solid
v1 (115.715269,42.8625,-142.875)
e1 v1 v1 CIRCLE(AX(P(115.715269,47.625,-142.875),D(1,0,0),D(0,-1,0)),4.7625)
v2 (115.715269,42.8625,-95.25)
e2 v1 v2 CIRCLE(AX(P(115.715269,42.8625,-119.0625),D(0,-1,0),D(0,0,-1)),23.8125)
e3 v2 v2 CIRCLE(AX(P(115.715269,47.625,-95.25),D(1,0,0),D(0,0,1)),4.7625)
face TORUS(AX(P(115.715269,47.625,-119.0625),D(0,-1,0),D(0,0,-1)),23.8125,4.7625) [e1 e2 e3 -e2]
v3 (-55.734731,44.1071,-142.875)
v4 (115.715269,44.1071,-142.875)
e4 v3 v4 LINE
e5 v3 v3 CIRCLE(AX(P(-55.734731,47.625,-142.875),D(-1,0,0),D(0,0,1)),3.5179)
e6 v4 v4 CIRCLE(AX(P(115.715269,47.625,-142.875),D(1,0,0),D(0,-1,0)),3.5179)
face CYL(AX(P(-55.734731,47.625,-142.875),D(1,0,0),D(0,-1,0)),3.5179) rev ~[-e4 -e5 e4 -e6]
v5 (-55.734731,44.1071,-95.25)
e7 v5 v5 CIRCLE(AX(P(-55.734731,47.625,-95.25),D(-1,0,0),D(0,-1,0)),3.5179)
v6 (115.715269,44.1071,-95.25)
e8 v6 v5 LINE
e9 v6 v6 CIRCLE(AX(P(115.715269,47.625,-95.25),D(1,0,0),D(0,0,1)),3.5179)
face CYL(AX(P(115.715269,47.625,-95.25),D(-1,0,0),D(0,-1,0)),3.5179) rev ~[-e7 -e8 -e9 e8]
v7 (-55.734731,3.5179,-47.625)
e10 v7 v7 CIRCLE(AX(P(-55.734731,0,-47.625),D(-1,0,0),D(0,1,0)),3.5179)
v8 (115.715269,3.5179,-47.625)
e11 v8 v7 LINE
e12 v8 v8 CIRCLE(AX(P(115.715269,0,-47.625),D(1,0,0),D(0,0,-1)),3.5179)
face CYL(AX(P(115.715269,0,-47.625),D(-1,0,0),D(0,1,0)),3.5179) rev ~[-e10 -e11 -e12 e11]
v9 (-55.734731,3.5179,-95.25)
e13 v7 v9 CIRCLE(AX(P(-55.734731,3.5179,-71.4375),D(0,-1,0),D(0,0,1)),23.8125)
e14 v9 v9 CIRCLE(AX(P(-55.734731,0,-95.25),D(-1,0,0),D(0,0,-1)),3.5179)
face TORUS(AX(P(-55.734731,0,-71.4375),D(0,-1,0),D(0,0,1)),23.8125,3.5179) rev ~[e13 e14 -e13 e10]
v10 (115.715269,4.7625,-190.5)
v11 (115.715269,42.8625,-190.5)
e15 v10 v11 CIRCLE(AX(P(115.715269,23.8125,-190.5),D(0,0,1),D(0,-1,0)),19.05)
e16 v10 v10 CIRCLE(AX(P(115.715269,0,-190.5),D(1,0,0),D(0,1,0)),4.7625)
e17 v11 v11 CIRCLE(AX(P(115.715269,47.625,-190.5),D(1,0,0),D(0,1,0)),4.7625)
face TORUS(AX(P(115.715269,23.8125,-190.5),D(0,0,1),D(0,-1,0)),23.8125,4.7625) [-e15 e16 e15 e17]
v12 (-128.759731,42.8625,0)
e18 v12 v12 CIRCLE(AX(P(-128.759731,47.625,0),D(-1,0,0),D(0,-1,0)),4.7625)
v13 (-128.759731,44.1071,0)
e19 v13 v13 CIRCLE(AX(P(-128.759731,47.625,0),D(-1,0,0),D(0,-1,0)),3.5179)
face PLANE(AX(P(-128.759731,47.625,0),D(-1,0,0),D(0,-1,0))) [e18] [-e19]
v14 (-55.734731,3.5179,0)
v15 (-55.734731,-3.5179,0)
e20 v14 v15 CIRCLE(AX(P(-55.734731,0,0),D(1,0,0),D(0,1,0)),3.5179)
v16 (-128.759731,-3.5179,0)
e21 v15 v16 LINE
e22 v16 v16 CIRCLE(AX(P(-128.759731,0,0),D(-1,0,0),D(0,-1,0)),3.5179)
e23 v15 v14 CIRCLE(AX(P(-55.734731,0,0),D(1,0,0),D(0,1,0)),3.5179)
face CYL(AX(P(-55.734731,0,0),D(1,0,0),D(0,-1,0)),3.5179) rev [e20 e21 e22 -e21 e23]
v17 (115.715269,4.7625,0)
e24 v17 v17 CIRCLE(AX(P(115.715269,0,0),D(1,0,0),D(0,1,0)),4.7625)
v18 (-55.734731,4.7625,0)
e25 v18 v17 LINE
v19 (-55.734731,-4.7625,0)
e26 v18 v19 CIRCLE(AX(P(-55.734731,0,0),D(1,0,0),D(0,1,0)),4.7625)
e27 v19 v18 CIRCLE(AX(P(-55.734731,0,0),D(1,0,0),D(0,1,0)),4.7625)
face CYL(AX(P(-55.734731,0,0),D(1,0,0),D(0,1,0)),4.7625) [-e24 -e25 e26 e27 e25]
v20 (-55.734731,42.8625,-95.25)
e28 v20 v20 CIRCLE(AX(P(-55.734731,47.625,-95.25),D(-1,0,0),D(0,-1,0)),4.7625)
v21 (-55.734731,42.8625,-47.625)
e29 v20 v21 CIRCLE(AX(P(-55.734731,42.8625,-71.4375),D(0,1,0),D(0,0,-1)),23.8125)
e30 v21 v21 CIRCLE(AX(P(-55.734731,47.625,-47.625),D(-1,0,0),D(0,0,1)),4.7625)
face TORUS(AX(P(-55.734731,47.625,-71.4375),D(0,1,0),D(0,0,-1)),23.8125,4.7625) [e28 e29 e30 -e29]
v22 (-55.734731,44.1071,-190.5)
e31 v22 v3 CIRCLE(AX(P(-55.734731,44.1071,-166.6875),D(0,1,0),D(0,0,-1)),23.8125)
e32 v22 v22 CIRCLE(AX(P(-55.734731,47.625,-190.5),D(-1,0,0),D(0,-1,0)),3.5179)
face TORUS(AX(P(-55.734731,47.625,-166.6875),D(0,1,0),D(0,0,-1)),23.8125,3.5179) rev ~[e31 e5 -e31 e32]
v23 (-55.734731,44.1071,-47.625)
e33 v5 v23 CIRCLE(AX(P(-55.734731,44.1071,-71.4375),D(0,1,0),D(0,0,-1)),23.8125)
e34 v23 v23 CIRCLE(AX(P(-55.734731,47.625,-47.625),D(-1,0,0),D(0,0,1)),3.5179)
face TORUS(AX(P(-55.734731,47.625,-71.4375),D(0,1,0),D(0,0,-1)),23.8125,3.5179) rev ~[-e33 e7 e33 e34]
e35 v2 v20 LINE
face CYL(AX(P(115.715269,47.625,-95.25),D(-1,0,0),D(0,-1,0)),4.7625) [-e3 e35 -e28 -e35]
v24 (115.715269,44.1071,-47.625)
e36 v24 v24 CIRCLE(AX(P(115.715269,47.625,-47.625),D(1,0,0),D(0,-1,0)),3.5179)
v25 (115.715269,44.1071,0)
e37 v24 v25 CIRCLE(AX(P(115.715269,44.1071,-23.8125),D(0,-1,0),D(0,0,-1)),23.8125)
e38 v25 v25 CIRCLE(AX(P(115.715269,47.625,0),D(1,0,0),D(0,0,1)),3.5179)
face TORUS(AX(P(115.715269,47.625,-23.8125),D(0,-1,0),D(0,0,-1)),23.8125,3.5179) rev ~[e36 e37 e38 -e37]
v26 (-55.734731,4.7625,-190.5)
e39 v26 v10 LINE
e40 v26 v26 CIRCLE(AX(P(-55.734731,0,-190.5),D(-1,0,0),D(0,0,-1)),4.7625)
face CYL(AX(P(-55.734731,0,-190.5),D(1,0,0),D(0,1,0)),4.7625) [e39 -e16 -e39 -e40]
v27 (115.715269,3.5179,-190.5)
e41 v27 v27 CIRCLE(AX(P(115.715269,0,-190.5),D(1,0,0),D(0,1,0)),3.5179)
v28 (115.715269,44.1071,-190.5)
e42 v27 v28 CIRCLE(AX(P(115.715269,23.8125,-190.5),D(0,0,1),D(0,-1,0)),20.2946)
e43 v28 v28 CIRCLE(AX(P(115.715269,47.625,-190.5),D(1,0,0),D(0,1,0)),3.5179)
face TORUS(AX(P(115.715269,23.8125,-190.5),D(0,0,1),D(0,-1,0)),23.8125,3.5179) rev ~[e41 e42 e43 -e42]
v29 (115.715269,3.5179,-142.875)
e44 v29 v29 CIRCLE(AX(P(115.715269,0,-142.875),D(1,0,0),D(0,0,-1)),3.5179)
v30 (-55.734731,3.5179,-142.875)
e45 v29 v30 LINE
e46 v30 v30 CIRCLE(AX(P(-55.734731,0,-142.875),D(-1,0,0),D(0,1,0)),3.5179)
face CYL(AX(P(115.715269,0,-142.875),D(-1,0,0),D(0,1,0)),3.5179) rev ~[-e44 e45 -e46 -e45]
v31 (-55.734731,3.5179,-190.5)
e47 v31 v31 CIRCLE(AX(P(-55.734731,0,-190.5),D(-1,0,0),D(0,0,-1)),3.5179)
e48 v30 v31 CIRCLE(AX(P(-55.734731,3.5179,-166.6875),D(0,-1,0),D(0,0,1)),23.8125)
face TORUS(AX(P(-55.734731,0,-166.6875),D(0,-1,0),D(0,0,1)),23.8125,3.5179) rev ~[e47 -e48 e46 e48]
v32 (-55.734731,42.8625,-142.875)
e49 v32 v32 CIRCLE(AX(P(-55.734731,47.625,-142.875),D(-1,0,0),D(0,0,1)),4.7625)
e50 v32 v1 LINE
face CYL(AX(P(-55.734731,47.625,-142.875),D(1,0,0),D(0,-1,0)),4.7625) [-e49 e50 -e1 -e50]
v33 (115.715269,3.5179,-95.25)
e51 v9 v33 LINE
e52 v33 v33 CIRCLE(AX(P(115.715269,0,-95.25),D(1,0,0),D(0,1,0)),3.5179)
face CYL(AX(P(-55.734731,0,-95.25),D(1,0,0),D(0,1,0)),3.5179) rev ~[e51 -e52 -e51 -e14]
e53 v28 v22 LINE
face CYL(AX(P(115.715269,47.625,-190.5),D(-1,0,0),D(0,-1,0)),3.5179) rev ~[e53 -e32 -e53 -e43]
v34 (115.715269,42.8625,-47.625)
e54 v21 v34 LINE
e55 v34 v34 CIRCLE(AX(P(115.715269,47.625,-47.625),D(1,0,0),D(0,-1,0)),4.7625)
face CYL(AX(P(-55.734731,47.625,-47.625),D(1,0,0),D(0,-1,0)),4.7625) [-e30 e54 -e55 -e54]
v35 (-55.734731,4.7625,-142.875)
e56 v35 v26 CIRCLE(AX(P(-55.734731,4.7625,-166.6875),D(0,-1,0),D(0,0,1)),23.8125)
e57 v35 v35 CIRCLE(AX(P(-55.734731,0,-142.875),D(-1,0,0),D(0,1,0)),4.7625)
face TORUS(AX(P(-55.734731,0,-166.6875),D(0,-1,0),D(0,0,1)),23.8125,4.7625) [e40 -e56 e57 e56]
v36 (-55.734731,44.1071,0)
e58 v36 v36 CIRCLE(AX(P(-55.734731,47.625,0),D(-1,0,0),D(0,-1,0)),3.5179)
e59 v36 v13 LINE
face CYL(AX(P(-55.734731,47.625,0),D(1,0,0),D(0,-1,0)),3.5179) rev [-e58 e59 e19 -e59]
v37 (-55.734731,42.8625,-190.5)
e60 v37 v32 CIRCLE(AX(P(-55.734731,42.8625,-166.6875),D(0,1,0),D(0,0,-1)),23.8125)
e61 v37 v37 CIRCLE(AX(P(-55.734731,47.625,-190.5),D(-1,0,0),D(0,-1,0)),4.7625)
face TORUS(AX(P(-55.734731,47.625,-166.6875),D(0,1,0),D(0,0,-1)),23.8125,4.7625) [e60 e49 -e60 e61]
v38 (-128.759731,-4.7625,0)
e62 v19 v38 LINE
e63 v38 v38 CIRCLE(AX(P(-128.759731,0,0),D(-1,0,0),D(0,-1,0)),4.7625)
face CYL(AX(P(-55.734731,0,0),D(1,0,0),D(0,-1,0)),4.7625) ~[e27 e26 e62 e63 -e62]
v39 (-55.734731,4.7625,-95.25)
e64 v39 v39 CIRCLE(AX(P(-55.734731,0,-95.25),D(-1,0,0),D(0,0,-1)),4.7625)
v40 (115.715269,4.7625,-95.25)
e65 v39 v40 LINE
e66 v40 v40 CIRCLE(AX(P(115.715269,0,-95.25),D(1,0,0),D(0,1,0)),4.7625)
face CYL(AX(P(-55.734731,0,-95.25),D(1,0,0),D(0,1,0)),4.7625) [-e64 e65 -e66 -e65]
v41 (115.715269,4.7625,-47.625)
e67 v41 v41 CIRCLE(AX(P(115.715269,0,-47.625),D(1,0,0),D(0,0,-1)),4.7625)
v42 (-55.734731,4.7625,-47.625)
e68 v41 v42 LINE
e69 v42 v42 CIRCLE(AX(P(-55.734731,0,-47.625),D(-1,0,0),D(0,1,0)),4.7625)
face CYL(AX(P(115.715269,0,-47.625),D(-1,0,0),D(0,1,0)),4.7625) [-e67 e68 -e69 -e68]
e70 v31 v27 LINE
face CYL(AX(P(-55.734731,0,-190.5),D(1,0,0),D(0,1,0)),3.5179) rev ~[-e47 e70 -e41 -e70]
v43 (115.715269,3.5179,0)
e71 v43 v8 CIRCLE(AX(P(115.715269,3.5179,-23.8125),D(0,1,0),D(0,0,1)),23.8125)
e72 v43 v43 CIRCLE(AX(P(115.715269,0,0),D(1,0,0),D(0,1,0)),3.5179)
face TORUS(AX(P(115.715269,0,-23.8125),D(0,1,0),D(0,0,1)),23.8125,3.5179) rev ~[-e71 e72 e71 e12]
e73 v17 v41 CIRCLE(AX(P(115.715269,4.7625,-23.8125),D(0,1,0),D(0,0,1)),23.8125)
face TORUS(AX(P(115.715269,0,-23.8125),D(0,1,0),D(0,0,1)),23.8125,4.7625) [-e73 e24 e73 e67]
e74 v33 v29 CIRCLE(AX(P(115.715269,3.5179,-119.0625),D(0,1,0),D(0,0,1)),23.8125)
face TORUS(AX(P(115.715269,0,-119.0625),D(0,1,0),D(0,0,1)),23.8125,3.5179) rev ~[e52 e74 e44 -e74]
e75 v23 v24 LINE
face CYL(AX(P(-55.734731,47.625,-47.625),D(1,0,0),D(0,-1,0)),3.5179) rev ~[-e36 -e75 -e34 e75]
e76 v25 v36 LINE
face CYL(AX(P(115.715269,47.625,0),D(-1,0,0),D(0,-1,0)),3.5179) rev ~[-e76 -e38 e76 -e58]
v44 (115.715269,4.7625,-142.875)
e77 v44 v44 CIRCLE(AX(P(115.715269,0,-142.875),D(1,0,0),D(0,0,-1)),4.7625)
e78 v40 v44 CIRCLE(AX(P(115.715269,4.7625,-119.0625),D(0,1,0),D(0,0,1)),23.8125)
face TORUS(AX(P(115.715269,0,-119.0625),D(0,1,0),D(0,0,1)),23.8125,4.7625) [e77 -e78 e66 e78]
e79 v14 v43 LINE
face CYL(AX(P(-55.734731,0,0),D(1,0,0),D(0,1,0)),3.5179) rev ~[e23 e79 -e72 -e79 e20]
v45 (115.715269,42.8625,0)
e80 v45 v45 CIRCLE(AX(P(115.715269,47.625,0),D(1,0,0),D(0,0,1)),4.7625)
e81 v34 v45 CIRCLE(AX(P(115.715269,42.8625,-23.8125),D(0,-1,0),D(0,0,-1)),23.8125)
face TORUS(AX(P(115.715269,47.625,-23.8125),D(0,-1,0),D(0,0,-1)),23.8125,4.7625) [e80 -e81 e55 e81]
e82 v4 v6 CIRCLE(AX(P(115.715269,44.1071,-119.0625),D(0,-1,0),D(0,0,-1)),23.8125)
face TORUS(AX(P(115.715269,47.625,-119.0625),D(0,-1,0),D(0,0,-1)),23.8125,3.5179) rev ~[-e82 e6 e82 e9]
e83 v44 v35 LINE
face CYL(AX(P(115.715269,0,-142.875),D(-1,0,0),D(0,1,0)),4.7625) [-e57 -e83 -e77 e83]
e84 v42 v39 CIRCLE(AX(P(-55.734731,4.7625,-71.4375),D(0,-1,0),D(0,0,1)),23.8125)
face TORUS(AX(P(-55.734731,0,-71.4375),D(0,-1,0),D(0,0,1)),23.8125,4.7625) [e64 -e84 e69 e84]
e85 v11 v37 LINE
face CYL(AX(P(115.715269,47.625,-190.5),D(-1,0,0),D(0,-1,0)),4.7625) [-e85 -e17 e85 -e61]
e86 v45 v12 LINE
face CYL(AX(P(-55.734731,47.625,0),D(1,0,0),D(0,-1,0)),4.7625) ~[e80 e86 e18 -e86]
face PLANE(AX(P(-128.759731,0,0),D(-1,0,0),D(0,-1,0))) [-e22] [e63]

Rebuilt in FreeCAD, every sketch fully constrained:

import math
import FreeCAD as App
import Part
import Sketcher
Q = App.Units.Quantity

doc = App.newDocument("Part")
body = doc.addObject("PartDesign::Body", "Body")

# Sketch on YZ plane
sketch1 = body.newObject("Sketcher::SketchObject", "Sketch")
sketch1.AttachmentSupport = (doc.getObject("YZ_Plane"), [""])
sketch1.MapMode = "FlatFace"
sketch1.AttachmentOffset = App.Placement(App.Vector(0, 0, -55.734731), App.Rotation())
sketch1.addGeometry([
    Part.Circle(App.Vector(0, 0, 0), App.Vector(0, 0, 1), 4.8),
    Part.Circle(App.Vector(0, 0, 0), App.Vector(0, 0, 1), 3.5),
], False)
sketch1.addConstraint([
    Sketcher.Constraint("Coincident", 0, 3, -1, 1),
    Sketcher.Constraint("Coincident", 1, 3, -1, 1),
    Sketcher.Constraint("Diameter", 0, Q("0.375 in")),
    Sketcher.Constraint("Diameter", 1, Q("0.277 in")),
])

# Sketch on XZ plane
sketch2 = body.newObject("Sketcher::SketchObject", "Sketch001")
sketch2.AttachmentSupport = (doc.getObject("XZ_Plane"), [""])
sketch2.MapMode = "FlatFace"
sketch2.addGeometry([
    Part.LineSegment(App.Vector(-56, 0, 0), App.Vector(116, 0, 0)),  # 0
    Part.ArcOfCircle(Part.Circle(App.Vector(116, -24, 0), App.Vector(0, 0, 1), 24), math.radians(-90), math.radians(90)),  # 1
    Part.LineSegment(App.Vector(116, -48, 0), App.Vector(-56, -48, 0)),  # 2
    Part.ArcOfCircle(Part.Circle(App.Vector(-56, -71, 0), App.Vector(0, 0, 1), 24), math.radians(90), math.radians(270)),  # 3
    Part.LineSegment(App.Vector(-56, -95, 0), App.Vector(116, -95, 0)),  # 4
    Part.ArcOfCircle(Part.Circle(App.Vector(116, -119, 0), App.Vector(0, 0, 1), 24), math.radians(-90), math.radians(90)),  # 5
    Part.LineSegment(App.Vector(116, -143, 0), App.Vector(-56, -143, 0)),  # 6
    Part.ArcOfCircle(Part.Circle(App.Vector(-56, -167, 0), App.Vector(0, 0, 1), 24), math.radians(90), math.radians(270)),  # 7
    Part.LineSegment(App.Vector(-56, -190, 0), App.Vector(116, -190, 0)),  # 8
], False)
sketch2.addConstraint([
    Sketcher.Constraint("Tangent", 0, 2, 1, 2),
    Sketcher.Constraint("Tangent", 1, 1, 2, 1),
    Sketcher.Constraint("Tangent", 2, 2, 3, 1),
    Sketcher.Constraint("Tangent", 3, 2, 4, 1),
    Sketcher.Constraint("Tangent", 4, 2, 5, 2),
    Sketcher.Constraint("Tangent", 5, 1, 6, 1),
    Sketcher.Constraint("Tangent", 6, 2, 7, 1),
    Sketcher.Constraint("Tangent", 7, 2, 8, 1),
    Sketcher.Constraint("Horizontal", 0),
    Sketcher.Constraint("Horizontal", 2),
    Sketcher.Constraint("Horizontal", 4),
    Sketcher.Constraint("Horizontal", 6),
    Sketcher.Constraint("Horizontal", 8),
    Sketcher.Constraint("Equal", 1, 3),
    Sketcher.Constraint("Equal", 3, 5),
    Sketcher.Constraint("Equal", 5, 7),
    Sketcher.Constraint("PointOnObject", 0, 1, -1),
    Sketcher.Constraint("Vertical", 1, 3, 5, 3),
    Sketcher.Constraint("Vertical", 3, 3, 7, 3),
    Sketcher.Constraint("Vertical", 7, 3, 0, 1),
    Sketcher.Constraint("Vertical", 5, 1, 8, 2),
    Sketcher.Constraint("Radius", 1, Q("0.9375 in")),
    Sketcher.Constraint("DistanceX", 0, 1, 0, 2, Q("6.75 in")),
    Sketcher.Constraint("DistanceX", -1, 1, 1, 3, Q("115.715269 mm")),
])
doc.recompute()

additivepipe = body.newObject("PartDesign::AdditivePipe", "AdditivePipe")
additivepipe.Profile = sketch1
additivepipe.Spine = (sketch2, ["Edge1", "Edge2", "Edge3", "Edge4", "Edge5", "Edge6", "Edge7", "Edge8", "Edge9"])

# Sketch on YZ plane
sketch3 = body.newObject("Sketcher::SketchObject", "Sketch002")
sketch3.AttachmentSupport = (doc.getObject("YZ_Plane"), [""])
sketch3.MapMode = "FlatFace"
sketch3.AttachmentOffset = App.Placement(App.Vector(0, 0, 115.715269), App.Rotation())
sketch3.addGeometry([
    Part.Circle(App.Vector(0, -190.5, 0), App.Vector(0, 0, 1), 4.8),
    Part.Circle(App.Vector(0, -190.5, 0), App.Vector(0, 0, 1), 3.5),
], False)
sketch3.addConstraint([
    Sketcher.Constraint("Coincident", 1, 3, 0, 3),
    Sketcher.Constraint("PointOnObject", 0, 3, -2),
    Sketcher.Constraint("Diameter", 0, Q("0.375 in")),
    Sketcher.Constraint("Diameter", 1, Q("0.277 in")),
    Sketcher.Constraint("DistanceY", 0, 3, -1, 1, Q("7.5 in")),
])

# Sketch on XY plane
sketch4 = body.newObject("Sketcher::SketchObject", "Sketch003")
sketch4.AttachmentSupport = (doc.getObject("XY_Plane"), [""])
sketch4.MapMode = "FlatFace"
sketch4.AttachmentOffset = App.Placement(App.Vector(0, 0, -7.5 * 25.4), App.Rotation())
sketch4.addGeometry(Part.ArcOfCircle(Part.Circle(App.Vector(116, 24, 0), App.Vector(0, 0, 1), 24), math.radians(-90), math.radians(90)), False)
sketch4.addConstraint([
    Sketcher.Constraint("PointOnObject", 0, 1, -1),
    Sketcher.Constraint("Radius", 0, Q("0.9375 in")),
    Sketcher.Constraint("DistanceX", -1, 1, 0, 3, Q("115.715269 mm")),
    Sketcher.Constraint("DistanceX", -1, 1, 0, 1, Q("115.715269 mm")),
    Sketcher.Constraint("DistanceX", -1, 1, 0, 2, Q("115.715269 mm")),
])
doc.recompute()

additivepipe2 = body.newObject("PartDesign::AdditivePipe", "AdditivePipe001")
additivepipe2.Profile = sketch3
additivepipe2.Spine = (sketch4, ["Edge1"])

# Sketch on YZ plane
sketch5 = body.newObject("Sketcher::SketchObject", "Sketch004")
sketch5.AttachmentSupport = (doc.getObject("YZ_Plane"), [""])
sketch5.MapMode = "FlatFace"
sketch5.AttachmentOffset = App.Placement(App.Vector(0, 0, 115.715269), App.Rotation())
sketch5.addGeometry([
    Part.Circle(App.Vector(47.6, -190.5, 0), App.Vector(0, 0, 1), 4.8),
    Part.Circle(App.Vector(47.6, -190.5, 0), App.Vector(0, 0, 1), 3.5),
], False)
sketch5.addConstraint([
    Sketcher.Constraint("Coincident", 1, 3, 0, 3),
    Sketcher.Constraint("Diameter", 0, Q("0.375 in")),
    Sketcher.Constraint("Diameter", 1, Q("0.277 in")),
    Sketcher.Constraint("DistanceY", 0, 3, -1, 1, Q("7.5 in")),
    Sketcher.Constraint("DistanceX", -1, 1, 0, 3, Q("1.875 in")),
])

# Sketch on XZ plane
sketch6 = body.newObject("Sketcher::SketchObject", "Sketch005")
sketch6.AttachmentSupport = (doc.getObject("XZ_Plane"), [""])
sketch6.MapMode = "FlatFace"
sketch6.AttachmentOffset = App.Placement(App.Vector(0, 0, -1.875 * 25.4), App.Rotation())
sketch6.addGeometry([
    Part.LineSegment(App.Vector(116, -190, 0), App.Vector(-56, -190, 0)),  # 0
    Part.ArcOfCircle(Part.Circle(App.Vector(-56, -167, 0), App.Vector(0, 0, 1), 24), math.radians(90), math.radians(270)),  # 1
    Part.LineSegment(App.Vector(-56, -143, 0), App.Vector(116, -143, 0)),  # 2
    Part.ArcOfCircle(Part.Circle(App.Vector(116, -119, 0), App.Vector(0, 0, 1), 24), math.radians(-90), math.radians(90)),  # 3
    Part.LineSegment(App.Vector(116, -95, 0), App.Vector(-56, -95, 0)),  # 4
    Part.ArcOfCircle(Part.Circle(App.Vector(-56, -71, 0), App.Vector(0, 0, 1), 24), math.radians(90), math.radians(270)),  # 5
    Part.LineSegment(App.Vector(-56, -48, 0), App.Vector(116, -48, 0)),  # 6
    Part.ArcOfCircle(Part.Circle(App.Vector(116, -24, 0), App.Vector(0, 0, 1), 24), math.radians(-90), math.radians(90)),  # 7
    Part.LineSegment(App.Vector(116, 0, 0), App.Vector(-56, 0, 0)),  # 8
], False)
sketch6.addConstraint([
    Sketcher.Constraint("Tangent", 0, 2, 1, 2),
    Sketcher.Constraint("Tangent", 1, 1, 2, 1),
    Sketcher.Constraint("Tangent", 2, 2, 3, 1),
    Sketcher.Constraint("Tangent", 3, 2, 4, 1),
    Sketcher.Constraint("Tangent", 4, 2, 5, 2),
    Sketcher.Constraint("Tangent", 5, 1, 6, 1),
    Sketcher.Constraint("Tangent", 6, 2, 7, 1),
    Sketcher.Constraint("Tangent", 7, 2, 8, 1),
    Sketcher.Constraint("Horizontal", 0),
    Sketcher.Constraint("Horizontal", 2),
    Sketcher.Constraint("Horizontal", 4),
    Sketcher.Constraint("Horizontal", 6),
    Sketcher.Constraint("Horizontal", 8),
    Sketcher.Constraint("Equal", 1, 3),
    Sketcher.Constraint("Equal", 3, 5),
    Sketcher.Constraint("Equal", 5, 7),
    Sketcher.Constraint("PointOnObject", 7, 2, -1),
    Sketcher.Constraint("Vertical", 1, 3, 5, 3),
    Sketcher.Constraint("Vertical", 3, 3, 7, 3),
    Sketcher.Constraint("Vertical", 7, 3, 0, 1),
    Sketcher.Constraint("Vertical", 5, 1, 8, 2),
    Sketcher.Constraint("Radius", 1, Q("0.9375 in")),
    Sketcher.Constraint("DistanceX", 0, 2, 0, 1, Q("6.75 in")),
    Sketcher.Constraint("DistanceX", 1, 3, -1, 1, Q("55.734731 mm")),
])
doc.recompute()

additivepipe3 = body.newObject("PartDesign::AdditivePipe", "AdditivePipe002")
additivepipe3.Profile = sketch5
additivepipe3.Spine = (sketch6, ["Edge1", "Edge2", "Edge3", "Edge4", "Edge5", "Edge6", "Edge7", "Edge8", "Edge9"])

# Sketch on YZ plane
sketch7 = body.newObject("Sketcher::SketchObject", "Sketch006")
sketch7.AttachmentSupport = (doc.getObject("YZ_Plane"), [""])
sketch7.MapMode = "FlatFace"
sketch7.AttachmentOffset = App.Placement(App.Vector(0, 0, -55.734731), App.Rotation())
sketch7.addGeometry([
    Part.Circle(App.Vector(47.6, 0, 0), App.Vector(0, 0, 1), 4.8),
    Part.Circle(App.Vector(47.6, 0, 0), App.Vector(0, 0, 1), 3.5),
    Part.Circle(App.Vector(0, 0, 0), App.Vector(0, 0, 1), 4.8),
    Part.Circle(App.Vector(0, 0, 0), App.Vector(0, 0, 1), 3.5),
], False)
sketch7.addConstraint([
    Sketcher.Constraint("Coincident", 2, 3, -1, 1),
    Sketcher.Constraint("Coincident", 3, 3, -1, 1),
    Sketcher.Constraint("Coincident", 1, 3, 0, 3),
    Sketcher.Constraint("Equal", 0, 2),
    Sketcher.Constraint("Equal", 1, 3),
    Sketcher.Constraint("PointOnObject", 0, 3, -1),
    Sketcher.Constraint("Diameter", 0, Q("0.375 in")),
    Sketcher.Constraint("Diameter", 1, Q("0.277 in")),
    Sketcher.Constraint("DistanceX", -1, 1, 0, 3, Q("1.875 in")),
])
pad1 = body.newObject("PartDesign::Pad", "Pad")
pad1.Profile = sketch7
pad1.Length = Q("2.875 in")
pad1.Reversed = True

doc.recompute()
